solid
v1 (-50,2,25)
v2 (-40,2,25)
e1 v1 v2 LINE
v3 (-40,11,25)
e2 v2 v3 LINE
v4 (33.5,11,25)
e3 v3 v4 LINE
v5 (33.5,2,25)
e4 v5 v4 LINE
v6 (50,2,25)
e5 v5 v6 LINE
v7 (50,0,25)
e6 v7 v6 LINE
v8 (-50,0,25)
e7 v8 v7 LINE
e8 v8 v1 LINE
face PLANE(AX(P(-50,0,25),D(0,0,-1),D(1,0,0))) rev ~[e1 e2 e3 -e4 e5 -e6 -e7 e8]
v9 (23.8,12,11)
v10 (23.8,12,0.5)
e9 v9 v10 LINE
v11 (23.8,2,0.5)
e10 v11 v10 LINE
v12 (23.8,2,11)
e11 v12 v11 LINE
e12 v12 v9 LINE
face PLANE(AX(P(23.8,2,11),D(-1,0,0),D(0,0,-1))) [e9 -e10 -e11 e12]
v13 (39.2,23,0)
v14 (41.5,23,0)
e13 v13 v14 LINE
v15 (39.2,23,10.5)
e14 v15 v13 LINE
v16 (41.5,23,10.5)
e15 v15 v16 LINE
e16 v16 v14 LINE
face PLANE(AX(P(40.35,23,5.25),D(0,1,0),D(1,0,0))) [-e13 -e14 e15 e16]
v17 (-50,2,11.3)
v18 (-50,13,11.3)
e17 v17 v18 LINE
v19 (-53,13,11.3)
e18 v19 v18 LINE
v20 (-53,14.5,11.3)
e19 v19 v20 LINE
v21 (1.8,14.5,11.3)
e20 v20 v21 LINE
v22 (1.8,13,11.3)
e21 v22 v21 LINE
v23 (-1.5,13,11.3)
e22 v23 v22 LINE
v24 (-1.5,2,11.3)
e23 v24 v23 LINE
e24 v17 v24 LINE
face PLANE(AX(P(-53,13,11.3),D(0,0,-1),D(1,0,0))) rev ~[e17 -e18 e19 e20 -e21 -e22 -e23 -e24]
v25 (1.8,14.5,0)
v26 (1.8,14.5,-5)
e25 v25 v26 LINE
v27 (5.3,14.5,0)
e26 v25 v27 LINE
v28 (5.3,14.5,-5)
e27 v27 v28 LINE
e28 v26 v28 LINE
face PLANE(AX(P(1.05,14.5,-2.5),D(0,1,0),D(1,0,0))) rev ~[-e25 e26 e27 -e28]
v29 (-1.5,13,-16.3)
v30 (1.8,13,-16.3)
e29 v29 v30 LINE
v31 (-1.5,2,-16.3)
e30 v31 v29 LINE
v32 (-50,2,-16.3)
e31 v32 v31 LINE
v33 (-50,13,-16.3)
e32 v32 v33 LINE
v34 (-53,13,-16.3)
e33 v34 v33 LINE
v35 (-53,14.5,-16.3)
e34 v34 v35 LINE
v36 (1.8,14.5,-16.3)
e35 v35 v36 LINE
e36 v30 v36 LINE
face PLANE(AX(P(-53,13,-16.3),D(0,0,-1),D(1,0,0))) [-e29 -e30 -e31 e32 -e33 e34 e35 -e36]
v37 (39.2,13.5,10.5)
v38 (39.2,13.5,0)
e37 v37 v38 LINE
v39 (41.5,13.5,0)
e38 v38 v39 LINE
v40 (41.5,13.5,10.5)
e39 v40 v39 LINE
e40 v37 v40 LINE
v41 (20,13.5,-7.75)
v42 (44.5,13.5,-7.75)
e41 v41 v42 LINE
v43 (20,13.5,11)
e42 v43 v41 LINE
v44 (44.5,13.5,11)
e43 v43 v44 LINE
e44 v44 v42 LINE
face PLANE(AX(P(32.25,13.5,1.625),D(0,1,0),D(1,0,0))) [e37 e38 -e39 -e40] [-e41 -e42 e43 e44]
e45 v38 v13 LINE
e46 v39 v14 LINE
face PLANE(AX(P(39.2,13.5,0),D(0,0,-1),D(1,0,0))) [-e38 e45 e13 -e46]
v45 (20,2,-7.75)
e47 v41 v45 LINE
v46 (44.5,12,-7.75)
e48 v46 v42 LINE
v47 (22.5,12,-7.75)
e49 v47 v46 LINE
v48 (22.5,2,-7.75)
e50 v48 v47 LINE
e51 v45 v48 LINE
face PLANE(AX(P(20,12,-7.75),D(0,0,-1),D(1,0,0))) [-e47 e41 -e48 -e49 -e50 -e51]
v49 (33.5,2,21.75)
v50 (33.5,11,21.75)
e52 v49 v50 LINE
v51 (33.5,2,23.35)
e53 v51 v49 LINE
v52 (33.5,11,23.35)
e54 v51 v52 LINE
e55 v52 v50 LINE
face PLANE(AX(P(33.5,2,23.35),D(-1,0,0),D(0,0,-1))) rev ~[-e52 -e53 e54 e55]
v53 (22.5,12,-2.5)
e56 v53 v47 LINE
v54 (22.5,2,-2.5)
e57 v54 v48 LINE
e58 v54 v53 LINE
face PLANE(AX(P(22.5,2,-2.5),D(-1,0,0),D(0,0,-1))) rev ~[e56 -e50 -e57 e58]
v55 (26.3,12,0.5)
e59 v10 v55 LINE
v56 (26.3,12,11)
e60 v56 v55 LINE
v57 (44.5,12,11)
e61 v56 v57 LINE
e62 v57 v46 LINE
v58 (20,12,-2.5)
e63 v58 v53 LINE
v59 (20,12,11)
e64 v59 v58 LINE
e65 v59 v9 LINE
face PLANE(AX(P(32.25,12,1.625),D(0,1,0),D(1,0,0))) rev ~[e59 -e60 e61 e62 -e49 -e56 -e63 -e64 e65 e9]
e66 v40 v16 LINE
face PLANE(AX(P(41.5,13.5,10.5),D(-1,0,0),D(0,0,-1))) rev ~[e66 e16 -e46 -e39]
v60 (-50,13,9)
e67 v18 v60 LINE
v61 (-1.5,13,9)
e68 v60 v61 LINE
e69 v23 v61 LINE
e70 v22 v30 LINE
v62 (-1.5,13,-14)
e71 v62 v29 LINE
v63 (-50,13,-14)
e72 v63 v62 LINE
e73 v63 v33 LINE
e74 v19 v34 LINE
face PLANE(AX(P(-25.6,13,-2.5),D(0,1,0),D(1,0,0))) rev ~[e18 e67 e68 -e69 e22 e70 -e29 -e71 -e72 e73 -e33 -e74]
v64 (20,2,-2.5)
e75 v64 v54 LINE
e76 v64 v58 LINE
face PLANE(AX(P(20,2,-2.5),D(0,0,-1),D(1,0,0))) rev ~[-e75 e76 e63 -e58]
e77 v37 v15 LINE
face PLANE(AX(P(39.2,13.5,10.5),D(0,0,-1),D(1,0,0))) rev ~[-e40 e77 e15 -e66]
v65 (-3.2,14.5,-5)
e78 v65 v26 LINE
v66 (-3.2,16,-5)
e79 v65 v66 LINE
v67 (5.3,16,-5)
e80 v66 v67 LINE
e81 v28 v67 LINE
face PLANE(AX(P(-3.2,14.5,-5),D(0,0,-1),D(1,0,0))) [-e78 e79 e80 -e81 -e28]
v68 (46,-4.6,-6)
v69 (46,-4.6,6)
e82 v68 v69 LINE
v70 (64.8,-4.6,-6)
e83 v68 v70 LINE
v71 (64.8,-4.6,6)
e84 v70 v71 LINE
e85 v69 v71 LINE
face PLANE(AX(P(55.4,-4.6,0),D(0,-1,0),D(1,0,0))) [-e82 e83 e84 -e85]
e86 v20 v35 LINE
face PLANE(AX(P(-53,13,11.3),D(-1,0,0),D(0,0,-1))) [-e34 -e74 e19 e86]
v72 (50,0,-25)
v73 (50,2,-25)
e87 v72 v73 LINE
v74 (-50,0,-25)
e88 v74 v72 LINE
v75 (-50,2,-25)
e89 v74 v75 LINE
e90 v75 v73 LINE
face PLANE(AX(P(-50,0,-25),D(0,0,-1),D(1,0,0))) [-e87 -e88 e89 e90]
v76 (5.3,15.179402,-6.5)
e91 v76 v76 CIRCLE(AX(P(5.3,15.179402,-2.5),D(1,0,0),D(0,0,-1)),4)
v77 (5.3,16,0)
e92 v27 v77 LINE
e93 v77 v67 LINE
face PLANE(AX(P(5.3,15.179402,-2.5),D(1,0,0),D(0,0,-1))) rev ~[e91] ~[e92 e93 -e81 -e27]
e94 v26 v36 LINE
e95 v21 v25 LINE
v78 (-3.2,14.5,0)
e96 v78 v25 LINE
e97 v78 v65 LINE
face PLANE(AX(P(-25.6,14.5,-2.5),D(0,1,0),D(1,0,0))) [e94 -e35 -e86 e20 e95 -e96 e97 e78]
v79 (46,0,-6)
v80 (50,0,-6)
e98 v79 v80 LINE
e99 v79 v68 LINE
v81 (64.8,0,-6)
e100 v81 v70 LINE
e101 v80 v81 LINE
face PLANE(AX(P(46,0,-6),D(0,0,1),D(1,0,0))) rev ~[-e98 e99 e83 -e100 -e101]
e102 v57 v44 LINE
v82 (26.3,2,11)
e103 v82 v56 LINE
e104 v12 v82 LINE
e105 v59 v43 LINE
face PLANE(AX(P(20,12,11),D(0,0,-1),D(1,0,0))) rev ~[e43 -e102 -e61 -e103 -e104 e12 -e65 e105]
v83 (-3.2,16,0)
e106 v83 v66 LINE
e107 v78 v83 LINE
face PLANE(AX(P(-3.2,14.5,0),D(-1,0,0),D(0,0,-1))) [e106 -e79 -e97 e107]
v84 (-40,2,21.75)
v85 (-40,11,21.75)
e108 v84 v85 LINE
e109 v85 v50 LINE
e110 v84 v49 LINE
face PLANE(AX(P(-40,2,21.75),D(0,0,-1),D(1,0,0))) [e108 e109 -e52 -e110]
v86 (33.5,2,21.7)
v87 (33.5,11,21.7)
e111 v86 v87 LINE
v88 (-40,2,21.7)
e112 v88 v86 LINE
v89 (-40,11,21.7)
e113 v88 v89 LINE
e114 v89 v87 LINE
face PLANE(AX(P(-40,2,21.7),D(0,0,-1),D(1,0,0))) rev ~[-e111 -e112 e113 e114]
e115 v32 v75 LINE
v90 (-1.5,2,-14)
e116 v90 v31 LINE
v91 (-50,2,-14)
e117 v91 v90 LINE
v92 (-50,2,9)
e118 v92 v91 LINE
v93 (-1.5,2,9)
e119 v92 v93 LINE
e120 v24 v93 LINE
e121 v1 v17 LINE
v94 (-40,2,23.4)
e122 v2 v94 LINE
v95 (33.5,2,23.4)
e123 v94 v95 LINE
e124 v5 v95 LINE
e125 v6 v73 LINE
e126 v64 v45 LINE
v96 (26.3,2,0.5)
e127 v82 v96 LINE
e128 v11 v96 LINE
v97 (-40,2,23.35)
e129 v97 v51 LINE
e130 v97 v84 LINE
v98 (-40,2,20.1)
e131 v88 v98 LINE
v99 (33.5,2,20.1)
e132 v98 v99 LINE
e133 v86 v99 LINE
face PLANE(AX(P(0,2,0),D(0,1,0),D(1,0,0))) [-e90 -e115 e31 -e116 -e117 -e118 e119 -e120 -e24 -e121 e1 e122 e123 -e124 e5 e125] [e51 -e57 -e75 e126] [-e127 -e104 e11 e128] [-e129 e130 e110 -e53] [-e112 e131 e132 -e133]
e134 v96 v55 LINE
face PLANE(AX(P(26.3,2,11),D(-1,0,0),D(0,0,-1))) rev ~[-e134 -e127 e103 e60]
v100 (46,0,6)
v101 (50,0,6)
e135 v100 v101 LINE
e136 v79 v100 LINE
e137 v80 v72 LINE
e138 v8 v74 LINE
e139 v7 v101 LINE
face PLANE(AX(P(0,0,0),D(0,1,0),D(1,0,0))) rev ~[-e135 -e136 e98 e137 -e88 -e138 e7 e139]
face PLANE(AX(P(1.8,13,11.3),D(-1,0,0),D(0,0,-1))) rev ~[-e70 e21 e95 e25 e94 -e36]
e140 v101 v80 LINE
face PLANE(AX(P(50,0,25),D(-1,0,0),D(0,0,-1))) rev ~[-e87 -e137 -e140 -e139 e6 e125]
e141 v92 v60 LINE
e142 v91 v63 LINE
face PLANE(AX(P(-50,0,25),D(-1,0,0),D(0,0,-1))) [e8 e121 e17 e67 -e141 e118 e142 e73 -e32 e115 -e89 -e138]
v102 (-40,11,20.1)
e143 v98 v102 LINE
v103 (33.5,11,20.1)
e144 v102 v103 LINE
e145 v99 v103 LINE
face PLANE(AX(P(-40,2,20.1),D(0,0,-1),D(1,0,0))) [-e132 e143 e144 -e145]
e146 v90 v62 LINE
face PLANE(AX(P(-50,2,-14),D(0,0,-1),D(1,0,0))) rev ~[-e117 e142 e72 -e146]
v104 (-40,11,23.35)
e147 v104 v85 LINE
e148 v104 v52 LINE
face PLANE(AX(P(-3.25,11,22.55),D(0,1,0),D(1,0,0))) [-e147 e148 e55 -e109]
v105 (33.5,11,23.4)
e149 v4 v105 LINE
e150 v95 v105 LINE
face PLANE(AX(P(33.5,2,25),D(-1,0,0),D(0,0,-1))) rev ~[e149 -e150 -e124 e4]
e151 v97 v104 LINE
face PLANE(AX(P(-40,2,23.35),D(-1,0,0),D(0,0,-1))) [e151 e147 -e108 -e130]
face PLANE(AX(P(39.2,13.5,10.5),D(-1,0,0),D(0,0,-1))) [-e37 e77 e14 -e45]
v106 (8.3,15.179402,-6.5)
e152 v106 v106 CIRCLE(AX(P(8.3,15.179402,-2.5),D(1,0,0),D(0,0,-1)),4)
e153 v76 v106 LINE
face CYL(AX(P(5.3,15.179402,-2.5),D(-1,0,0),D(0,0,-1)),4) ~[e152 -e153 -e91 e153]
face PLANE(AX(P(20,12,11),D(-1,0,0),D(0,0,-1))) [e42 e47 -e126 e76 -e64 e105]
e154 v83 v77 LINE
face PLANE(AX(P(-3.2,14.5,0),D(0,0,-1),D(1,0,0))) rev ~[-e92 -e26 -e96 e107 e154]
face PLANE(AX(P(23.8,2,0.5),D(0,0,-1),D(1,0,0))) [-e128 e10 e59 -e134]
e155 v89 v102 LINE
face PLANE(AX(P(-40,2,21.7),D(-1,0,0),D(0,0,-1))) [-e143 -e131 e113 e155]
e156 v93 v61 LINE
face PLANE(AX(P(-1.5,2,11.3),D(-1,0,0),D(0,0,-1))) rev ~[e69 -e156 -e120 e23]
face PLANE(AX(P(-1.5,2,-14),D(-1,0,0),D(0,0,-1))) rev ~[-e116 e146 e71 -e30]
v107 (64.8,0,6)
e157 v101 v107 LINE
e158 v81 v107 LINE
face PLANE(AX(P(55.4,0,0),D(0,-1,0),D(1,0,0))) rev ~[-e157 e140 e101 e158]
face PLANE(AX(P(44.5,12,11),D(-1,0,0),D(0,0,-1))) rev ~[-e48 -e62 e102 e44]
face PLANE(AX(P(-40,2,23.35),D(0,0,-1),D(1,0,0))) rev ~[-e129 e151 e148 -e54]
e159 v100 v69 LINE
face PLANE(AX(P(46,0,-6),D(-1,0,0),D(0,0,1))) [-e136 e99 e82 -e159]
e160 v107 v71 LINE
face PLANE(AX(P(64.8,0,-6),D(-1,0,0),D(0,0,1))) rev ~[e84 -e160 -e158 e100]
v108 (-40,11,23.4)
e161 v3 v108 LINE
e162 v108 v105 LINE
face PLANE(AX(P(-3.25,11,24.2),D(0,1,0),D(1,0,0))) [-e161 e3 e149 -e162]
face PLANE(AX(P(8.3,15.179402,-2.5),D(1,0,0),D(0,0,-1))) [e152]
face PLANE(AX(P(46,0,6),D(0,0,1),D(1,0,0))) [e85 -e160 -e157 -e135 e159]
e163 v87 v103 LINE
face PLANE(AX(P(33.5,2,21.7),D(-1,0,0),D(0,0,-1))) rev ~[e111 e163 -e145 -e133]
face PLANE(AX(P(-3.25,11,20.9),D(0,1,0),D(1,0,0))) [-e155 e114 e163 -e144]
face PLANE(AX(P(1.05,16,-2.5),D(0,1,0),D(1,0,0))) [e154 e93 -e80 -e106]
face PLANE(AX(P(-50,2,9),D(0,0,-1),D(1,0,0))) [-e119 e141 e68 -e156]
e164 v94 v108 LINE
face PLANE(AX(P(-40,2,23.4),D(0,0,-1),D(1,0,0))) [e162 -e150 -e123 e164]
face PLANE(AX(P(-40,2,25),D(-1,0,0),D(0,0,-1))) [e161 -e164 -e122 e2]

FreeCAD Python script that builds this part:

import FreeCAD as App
import Part
import Sketcher
from FreeCAD import Vector


def add_polygon(sketch, points):
    """Adds a closed chain of lines whose ends are joined by coincident constraints."""
    first, n = sketch.GeometryCount, len(points)
    for a, b in zip(points, points[1:] + points[:1]):
        sketch.addGeometry(Part.LineSegment(App.Vector(*a, 0), App.Vector(*b, 0)), False)
    for i in range(n):
        sketch.addConstraint(Sketcher.Constraint("Coincident", first + i, 2, first + (i + 1) % n, 1))

doc = App.newDocument("Part")
body = doc.addObject("PartDesign::Body", "Body")

# Sketch on XZ plane
sketch1 = body.newObject("Sketcher::SketchObject", "Sketch")
sketch1.AttachmentSupport = (doc.getObject("XZ_Plane"), [""])
sketch1.MapMode = "FlatFace"
add_polygon(sketch1, [(-50, -25), (-50, 25), (50, 25), (50, -25)])  # lines 0-3
sketch1.addConstraint([
    Sketcher.Constraint("Vertical", 0),
    Sketcher.Constraint("Horizontal", 1),
    Sketcher.Constraint("Vertical", 2),
    Sketcher.Constraint("Horizontal", 3),
    Sketcher.Constraint("Symmetric", 0, 2, 2, 2, -1, 1),
    Sketcher.Constraint("DistanceX", 1, 1, 1, 2, 100.0),
    Sketcher.Constraint("DistanceY", 0, 1, 0, 2, 50.0),
])
pad1 = body.newObject("PartDesign::Pad", "Pad")
pad1.Profile = sketch1
pad1.Length = 2
pad1.Reversed = True

# Sketch on XZ plane
sketch2 = body.newObject("Sketcher::SketchObject", "Sketch001")
sketch2.AttachmentSupport = (doc.getObject("XZ_Plane"), [""])
sketch2.MapMode = "FlatFace"
sketch2.AttachmentOffset = App.Placement(Vector(0, 0, -2), App.Rotation())
add_polygon(sketch2, [(-40, 23.4), (-40, 25), (33.5, 25), (33.5, 23.4)])  # lines 0-3
sketch2.addConstraint([
    Sketcher.Constraint("Vertical", 0),
    Sketcher.Constraint("Horizontal", 1),
    Sketcher.Constraint("Vertical", 2),
    Sketcher.Constraint("Horizontal", 3),
    Sketcher.Constraint("DistanceX", 1, 1, 1, 2, 73.5),
    Sketcher.Constraint("DistanceY", 0, 1, 0, 2, 1.6),
    Sketcher.Constraint("DistanceX", 0, 2, -1, 1, 40.0),
    Sketcher.Constraint("DistanceY", -1, 1, 0, 2, 25.0),
])
pad2 = body.newObject("PartDesign::Pad", "Pad001")
pad2.Profile = sketch2
pad2.Length = 9
pad2.Reversed = True
doc.recompute()

linearpattern = body.newObject("PartDesign::LinearPattern", "LinearPattern")
linearpattern.Originals = [pad2]
linearpattern.Direction = (doc.getObject("Z_Axis"), [""])
linearpattern.Mode = "offset"
linearpattern.Offset = 1.65
linearpattern.Occurrences = 3
linearpattern.Reversed = True
body.Tip = linearpattern

# Sketch on XZ plane
sketch3 = body.newObject("Sketcher::SketchObject", "Sketch002")
sketch3.AttachmentSupport = (doc.getObject("XZ_Plane"), [""])
sketch3.MapMode = "FlatFace"
add_polygon(sketch3, [(46, 6), (46, -6), (65, -6), (65, 6)])  # lines 0-3
sketch3.addConstraint([
    Sketcher.Constraint("Vertical", 0),
    Sketcher.Constraint("Horizontal", 1),
    Sketcher.Constraint("Vertical", 2),
    Sketcher.Constraint("Horizontal", 3),
    Sketcher.Constraint("DistanceY", 0, 2, 0, 1, 12.0),
    Sketcher.Constraint("DistanceX", 1, 1, 1, 2, 18.8),
    Sketcher.Constraint("DistanceX", -1, 1, 0, 2, 46.0),
    Sketcher.Constraint("DistanceY", 0, 2, -1, 1, 6.0),
])
pad3 = body.newObject("PartDesign::Pad", "Pad002")
pad3.Profile = sketch3
pad3.Length = 4.6

# Sketch on XZ plane
sketch4 = body.newObject("Sketcher::SketchObject", "Sketch003")
sketch4.AttachmentSupport = (doc.getObject("XZ_Plane"), [""])
sketch4.MapMode = "FlatFace"
sketch4.AttachmentOffset = App.Placement(Vector(0, 0, -2), App.Rotation())
add_polygon(sketch4, [(-50, 9), (-50, 11.3), (-1.5, 11.3), (-1.5, 9)])  # lines 0-3
add_polygon(sketch4, [(-50, -16.3), (-50, -14), (-1.5, -14), (-1.5, -16.3)])  # lines 4-7
sketch4.addConstraint([
    Sketcher.Constraint("Vertical", 0),
    Sketcher.Constraint("Horizontal", 1),
    Sketcher.Constraint("Vertical", 2),
    Sketcher.Constraint("Horizontal", 3),
    Sketcher.Constraint("Vertical", 4),
    Sketcher.Constraint("Horizontal", 5),
    Sketcher.Constraint("Vertical", 6),
    Sketcher.Constraint("Horizontal", 7),
    Sketcher.Constraint("Vertical", 3, 2, 4, 2),
    Sketcher.Constraint("Vertical", 2, 2, 5, 2),
    Sketcher.Constraint("Equal", 2, 4),
    Sketcher.Constraint("DistanceX", 1, 1, 1, 2, 48.5),
    Sketcher.Constraint("DistanceY", 0, 1, 0, 2, 2.3),
    Sketcher.Constraint("DistanceX", 0, 2, -1, 1, 50.0),
    Sketcher.Constraint("DistanceY", -1, 1, 2, 2, 9.0),
    Sketcher.Constraint("DistanceY", 4, 2, -1, 1, 14.0),
])
pad4 = body.newObject("PartDesign::Pad", "Pad003")
pad4.Profile = sketch4
pad4.Length = 11
pad4.Reversed = True

# Sketch on XZ plane
sketch5 = body.newObject("Sketcher::SketchObject", "Sketch004")
sketch5.AttachmentSupport = (doc.getObject("XZ_Plane"), [""])
sketch5.MapMode = "FlatFace"
sketch5.AttachmentOffset = App.Placement(Vector(0, 0, -13), App.Rotation())
add_polygon(sketch5, [(-53, -16), (-53, 11), (2, 11), (2, -16)])  # lines 0-3
sketch5.addConstraint([
    Sketcher.Constraint("Vertical", 0),
    Sketcher.Constraint("Horizontal", 1),
    Sketcher.Constraint("Vertical", 2),
    Sketcher.Constraint("Horizontal", 3),
    Sketcher.Constraint("DistanceX", 1, 1, 1, 2, 54.8),
    Sketcher.Constraint("DistanceY", 0, 1, 0, 2, 27.6),
    Sketcher.Constraint("DistanceX", 0, 2, -1, 1, 53.0),
    Sketcher.Constraint("DistanceY", -1, 1, 0, 2, 11.3),
])
pad5 = body.newObject("PartDesign::Pad", "Pad004")
pad5.Profile = sketch5
pad5.Length = 1.5
pad5.Reversed = True

# Sketch on XZ plane
sketch6 = body.newObject("Sketcher::SketchObject", "Sketch005")
sketch6.AttachmentSupport = (doc.getObject("XZ_Plane"), [""])
sketch6.MapMode = "FlatFace"
sketch6.AttachmentOffset = App.Placement(Vector(0, 0, -14.5), App.Rotation())
add_polygon(sketch6, [(-3, -5), (-3, 0), (5, 0), (5, -5)])  # lines 0-3
sketch6.addConstraint([
    Sketcher.Constraint("Vertical", 0),
    Sketcher.Constraint("Horizontal", 1),
    Sketcher.Constraint("Vertical", 2),
    Sketcher.Constraint("Horizontal", 3),
    Sketcher.Constraint("PointOnObject", 0, 2, -1),
    Sketcher.Constraint("DistanceY", 0, 1, 0, 2, 5.0),
    Sketcher.Constraint("DistanceX", 1, 1, 1, 2, 8.5),
    Sketcher.Constraint("DistanceX", 0, 2, -1, 1, 3.2),
])
pad6 = body.newObject("PartDesign::Pad", "Pad005")
pad6.Profile = sketch6
pad6.Length = 1.5
pad6.Reversed = True

# Sketch on YZ plane
sketch7 = body.newObject("Sketcher::SketchObject", "Sketch006")
sketch7.AttachmentSupport = (doc.getObject("YZ_Plane"), [""])
sketch7.MapMode = "FlatFace"
sketch7.AttachmentOffset = App.Placement(Vector(0, 0, 5.3), App.Rotation())
sketch7.addGeometry(Part.Circle(Vector(15.2, -2.5, 0), Vector(0, 0, 1), 4), False)
sketch7.addConstraint([
    Sketcher.Constraint("Diameter", 0, 8.0),
    Sketcher.Constraint("DistanceY", 0, 3, -1, 1, 2.5),
    Sketcher.Constraint("DistanceX", -1, 1, 0, 3, 15.179402),
])
pad7 = body.newObject("PartDesign::Pad", "Pad006")
pad7.Profile = sketch7
pad7.Length = 3

# Sketch on XZ plane
sketch8 = body.newObject("Sketcher::SketchObject", "Sketch007")
sketch8.AttachmentSupport = (doc.getObject("XZ_Plane"), [""])
sketch8.MapMode = "FlatFace"
sketch8.AttachmentOffset = App.Placement(Vector(0, 0, -2), App.Rotation())
add_polygon(sketch8, [(23.8, 0.5), (23.8, 11), (26.3, 11), (26.3, 0.5)])  # lines 0-3
add_polygon(sketch8, [(20, -7.8), (20, -2.5), (22.5, -2.5), (22.5, -7.8)])  # lines 4-7
sketch8.addConstraint([
    Sketcher.Constraint("Vertical", 0),
    Sketcher.Constraint("Horizontal", 1),
    Sketcher.Constraint("Vertical", 2),
    Sketcher.Constraint("Horizontal", 3),
    Sketcher.Constraint("Vertical", 4),
    Sketcher.Constraint("Horizontal", 5),
    Sketcher.Constraint("Vertical", 6),
    Sketcher.Constraint("Horizontal", 7),
    Sketcher.Constraint("Equal", 3, 5),
    Sketcher.Constraint("DistanceX", 1, 1, 1, 2, 2.5),
    Sketcher.Constraint("DistanceY", 0, 1, 0, 2, 10.5),
    Sketcher.Constraint("DistanceY", -1, 1, 0, 2, 11.0),
    Sketcher.Constraint("DistanceX", -1, 1, 4, 2, 20.0),
    Sketcher.Constraint("DistanceY", 4, 2, 3, 2, 3.0),
    Sketcher.Constraint("DistanceY", 4, 1, 4, 2, 5.25),
    Sketcher.Constraint("DistanceX", -1, 1, 0, 2, 23.8),
])
pad8 = body.newObject("PartDesign::Pad", "Pad007")
pad8.Profile = sketch8
pad8.Length = 10
pad8.Reversed = True

# Sketch on XZ plane
sketch9 = body.newObject("Sketcher::SketchObject", "Sketch008")
sketch9.AttachmentSupport = (doc.getObject("XZ_Plane"), [""])
sketch9.MapMode = "FlatFace"
sketch9.AttachmentOffset = App.Placement(Vector(0, 0, -12), App.Rotation())
add_polygon(sketch9, [(20, -8), (20, 11), (44, 11), (44, -8)])  # lines 0-3
sketch9.addConstraint([
    Sketcher.Constraint("Vertical", 0),
    Sketcher.Constraint("Horizontal", 1),
    Sketcher.Constraint("Vertical", 2),
    Sketcher.Constraint("Horizontal", 3),
    Sketcher.Constraint("DistanceX", 1, 1, 1, 2, 24.5),
    Sketcher.Constraint("DistanceX", -1, 1, 0, 2, 20.0),
    Sketcher.Constraint("DistanceY", -1, 1, 0, 2, 11.0),
    Sketcher.Constraint("DistanceY", 0, 1, 0, 2, 18.75),
])
pad9 = body.newObject("PartDesign::Pad", "Pad008")
pad9.Profile = sketch9
pad9.Length = 1.5
pad9.Reversed = True

# Sketch on XZ plane
sketch10 = body.newObject("Sketcher::SketchObject", "Sketch009")
sketch10.AttachmentSupport = (doc.getObject("XZ_Plane"), [""])
sketch10.MapMode = "FlatFace"
sketch10.AttachmentOffset = App.Placement(Vector(0, 0, -13.5), App.Rotation())
add_polygon(sketch10, [(39.2, 0), (39.2, 10.5), (41.5, 10.5), (41.5, 0)])  # lines 0-3
sketch10.addConstraint([
    Sketcher.Constraint("Vertical", 0),
    Sketcher.Constraint("Horizontal", 1),
    Sketcher.Constraint("Vertical", 2),
    Sketcher.Constraint("Horizontal", 3),
    Sketcher.Constraint("PointOnObject", 2, 2, -1),
    Sketcher.Constraint("DistanceX", 1, 1, 1, 2, 2.3),
    Sketcher.Constraint("DistanceY", 0, 1, 0, 2, 10.5),
    Sketcher.Constraint("DistanceX", -1, 1, 0, 2, 39.2),
])
pad10 = body.newObject("PartDesign::Pad", "Pad009")
pad10.Profile = sketch10
pad10.Length = 9.5
pad10.Reversed = True

doc.recompute()
